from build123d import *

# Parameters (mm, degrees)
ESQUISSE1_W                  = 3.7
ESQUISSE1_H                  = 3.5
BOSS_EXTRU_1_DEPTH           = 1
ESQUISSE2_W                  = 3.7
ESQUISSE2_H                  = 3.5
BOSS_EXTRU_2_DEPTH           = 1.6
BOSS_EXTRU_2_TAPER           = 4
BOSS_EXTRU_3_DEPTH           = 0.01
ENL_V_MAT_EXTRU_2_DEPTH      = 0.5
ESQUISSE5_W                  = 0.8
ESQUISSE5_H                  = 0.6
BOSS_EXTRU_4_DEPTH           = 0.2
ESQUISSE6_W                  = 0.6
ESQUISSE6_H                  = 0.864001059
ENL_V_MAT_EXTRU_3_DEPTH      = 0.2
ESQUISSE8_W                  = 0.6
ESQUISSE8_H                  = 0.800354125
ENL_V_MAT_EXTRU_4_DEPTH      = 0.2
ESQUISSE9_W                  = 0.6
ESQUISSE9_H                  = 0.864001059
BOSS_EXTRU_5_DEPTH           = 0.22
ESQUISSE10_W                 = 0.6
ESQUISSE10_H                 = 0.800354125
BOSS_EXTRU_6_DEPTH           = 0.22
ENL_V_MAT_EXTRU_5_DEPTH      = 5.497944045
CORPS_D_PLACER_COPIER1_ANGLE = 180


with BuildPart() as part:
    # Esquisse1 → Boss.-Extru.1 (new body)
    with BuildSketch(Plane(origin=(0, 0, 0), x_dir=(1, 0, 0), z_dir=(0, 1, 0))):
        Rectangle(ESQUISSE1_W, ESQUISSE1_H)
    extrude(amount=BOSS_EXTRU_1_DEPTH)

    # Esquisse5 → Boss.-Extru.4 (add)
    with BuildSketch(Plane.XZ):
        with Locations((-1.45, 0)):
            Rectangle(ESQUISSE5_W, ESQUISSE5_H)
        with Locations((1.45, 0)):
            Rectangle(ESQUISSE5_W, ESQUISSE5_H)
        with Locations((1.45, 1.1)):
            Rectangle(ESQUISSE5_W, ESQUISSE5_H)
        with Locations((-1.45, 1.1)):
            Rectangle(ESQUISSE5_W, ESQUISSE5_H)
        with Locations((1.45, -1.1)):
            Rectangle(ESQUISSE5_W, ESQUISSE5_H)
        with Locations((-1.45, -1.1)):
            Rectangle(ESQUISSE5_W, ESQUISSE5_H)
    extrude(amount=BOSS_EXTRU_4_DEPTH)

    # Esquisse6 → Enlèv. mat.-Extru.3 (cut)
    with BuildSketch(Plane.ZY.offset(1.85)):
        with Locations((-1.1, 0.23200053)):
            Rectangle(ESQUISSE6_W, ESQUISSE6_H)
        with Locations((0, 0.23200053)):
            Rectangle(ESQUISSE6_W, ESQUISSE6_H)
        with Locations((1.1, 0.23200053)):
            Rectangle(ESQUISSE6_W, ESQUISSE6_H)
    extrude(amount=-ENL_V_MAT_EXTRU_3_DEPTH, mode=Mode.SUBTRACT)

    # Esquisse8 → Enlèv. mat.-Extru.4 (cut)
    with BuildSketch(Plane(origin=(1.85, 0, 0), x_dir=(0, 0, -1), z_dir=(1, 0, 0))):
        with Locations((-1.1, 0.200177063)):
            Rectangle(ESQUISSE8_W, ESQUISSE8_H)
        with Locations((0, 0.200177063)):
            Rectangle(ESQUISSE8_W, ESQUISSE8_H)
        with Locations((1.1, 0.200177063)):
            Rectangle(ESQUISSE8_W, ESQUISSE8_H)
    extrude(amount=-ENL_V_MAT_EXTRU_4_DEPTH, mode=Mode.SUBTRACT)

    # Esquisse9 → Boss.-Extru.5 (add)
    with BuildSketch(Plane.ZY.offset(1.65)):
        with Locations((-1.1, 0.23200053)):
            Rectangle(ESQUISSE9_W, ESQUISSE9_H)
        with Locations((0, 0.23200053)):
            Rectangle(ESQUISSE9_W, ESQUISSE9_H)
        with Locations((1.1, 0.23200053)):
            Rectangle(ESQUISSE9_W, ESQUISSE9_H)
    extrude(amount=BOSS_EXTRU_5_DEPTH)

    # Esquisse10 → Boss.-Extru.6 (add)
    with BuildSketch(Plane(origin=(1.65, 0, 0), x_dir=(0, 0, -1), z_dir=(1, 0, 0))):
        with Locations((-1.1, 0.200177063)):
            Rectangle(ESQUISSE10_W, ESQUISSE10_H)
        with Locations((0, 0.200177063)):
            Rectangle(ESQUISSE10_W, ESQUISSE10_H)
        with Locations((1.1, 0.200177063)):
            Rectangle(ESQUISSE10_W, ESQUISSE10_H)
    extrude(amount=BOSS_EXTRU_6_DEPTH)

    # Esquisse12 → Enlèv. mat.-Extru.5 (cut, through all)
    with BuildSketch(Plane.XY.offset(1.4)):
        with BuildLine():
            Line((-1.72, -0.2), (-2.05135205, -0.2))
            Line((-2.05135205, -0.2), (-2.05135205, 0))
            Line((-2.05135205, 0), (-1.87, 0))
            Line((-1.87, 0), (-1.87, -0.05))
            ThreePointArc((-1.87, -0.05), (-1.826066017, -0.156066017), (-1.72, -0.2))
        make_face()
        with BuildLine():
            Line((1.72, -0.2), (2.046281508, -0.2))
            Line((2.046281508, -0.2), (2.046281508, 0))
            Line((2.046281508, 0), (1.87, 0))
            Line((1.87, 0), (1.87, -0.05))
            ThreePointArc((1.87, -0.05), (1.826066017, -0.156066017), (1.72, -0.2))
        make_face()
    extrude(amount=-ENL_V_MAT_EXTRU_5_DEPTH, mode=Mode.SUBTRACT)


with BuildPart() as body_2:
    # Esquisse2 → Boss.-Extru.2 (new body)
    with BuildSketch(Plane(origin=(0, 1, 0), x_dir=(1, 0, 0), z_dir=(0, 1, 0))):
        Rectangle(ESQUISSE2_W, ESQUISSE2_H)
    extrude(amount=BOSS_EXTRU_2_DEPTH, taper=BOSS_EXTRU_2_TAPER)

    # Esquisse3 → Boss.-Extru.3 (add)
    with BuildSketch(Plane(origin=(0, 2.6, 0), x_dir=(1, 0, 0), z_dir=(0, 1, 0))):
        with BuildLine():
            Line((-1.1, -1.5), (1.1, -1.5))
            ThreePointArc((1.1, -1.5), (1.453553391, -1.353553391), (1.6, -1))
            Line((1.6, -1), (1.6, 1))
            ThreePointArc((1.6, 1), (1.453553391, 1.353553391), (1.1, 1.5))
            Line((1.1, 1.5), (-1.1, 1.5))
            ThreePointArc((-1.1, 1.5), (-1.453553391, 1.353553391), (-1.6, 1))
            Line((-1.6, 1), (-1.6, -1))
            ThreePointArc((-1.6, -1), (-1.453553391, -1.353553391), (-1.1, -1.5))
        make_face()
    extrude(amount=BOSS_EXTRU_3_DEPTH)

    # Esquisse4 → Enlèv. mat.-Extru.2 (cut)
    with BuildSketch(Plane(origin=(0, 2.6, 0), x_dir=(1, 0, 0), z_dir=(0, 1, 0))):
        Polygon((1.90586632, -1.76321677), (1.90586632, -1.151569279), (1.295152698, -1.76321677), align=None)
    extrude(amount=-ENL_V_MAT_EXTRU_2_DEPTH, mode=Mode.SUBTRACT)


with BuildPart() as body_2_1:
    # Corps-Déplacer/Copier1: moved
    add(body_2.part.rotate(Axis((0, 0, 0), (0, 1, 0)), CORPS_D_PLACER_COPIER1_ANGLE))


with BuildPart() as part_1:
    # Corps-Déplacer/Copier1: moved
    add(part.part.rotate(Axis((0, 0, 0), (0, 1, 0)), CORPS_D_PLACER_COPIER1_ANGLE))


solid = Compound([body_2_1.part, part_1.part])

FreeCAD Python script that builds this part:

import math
import FreeCAD as App
import Part
import Sketcher
Q = App.Units.Quantity


def add_polygon(sketch, points):
    """Adds a closed chain of lines whose ends are joined by coincident constraints."""
    first, n = sketch.GeometryCount, len(points)
    for a, b in zip(points, points[1:] + points[:1]):
        sketch.addGeometry(Part.LineSegment(App.Vector(*a, 0), App.Vector(*b, 0)), False)
    for i in range(n):
        sketch.addConstraint(Sketcher.Constraint("Coincident", first + i, 2, first + (i + 1) % n, 1))

doc = App.newDocument("Part")
body = doc.addObject("PartDesign::Body", "Body")

# Sketch on XZ plane
sketch1 = body.newObject("Sketcher::SketchObject", "Sketch")
sketch1.AttachmentSupport = (doc.getObject("XZ_Plane"), [""])
sketch1.MapMode = "FlatFace"
add_polygon(sketch1, [(-1.85, -1.75), (-1.85, 1.75), (1.85, 1.75), (1.85, -1.75)])  # lines 0-3
sketch1.addConstraint([
    Sketcher.Constraint("Vertical", 0),
    Sketcher.Constraint("Horizontal", 1),
    Sketcher.Constraint("Vertical", 2),
    Sketcher.Constraint("Horizontal", 3),
    Sketcher.Constraint("Symmetric", 0, 2, 2, 2, -1, 1),
    Sketcher.Constraint("DistanceX", 1, 1, 1, 2, Q("3.7 mm")),
    Sketcher.Constraint("DistanceY", 0, 1, 0, 2, Q("3.5 mm")),
])
pad1 = body.newObject("PartDesign::Pad", "Pad")
pad1.Profile = sketch1
pad1.Length = 1
pad1.Reversed = True

# Sketch on XZ plane
sketch2 = body.newObject("Sketcher::SketchObject", "Sketch001")
sketch2.AttachmentSupport = (doc.getObject("XZ_Plane"), [""])
sketch2.MapMode = "FlatFace"
add_polygon(sketch2, [(-1.85, 0.3), (-1.85, -0.3), (-1.05, -0.3), (-1.05, 0.3)])  # lines 0-3
add_polygon(sketch2, [(1.05, 0.3), (1.05, -0.3), (1.85, -0.3), (1.85, 0.3)])  # lines 4-7
add_polygon(sketch2, [(1.05, 1.4), (1.05, 0.8), (1.85, 0.8), (1.85, 1.4)])  # lines 8-11
add_polygon(sketch2, [(-1.85, 1.4), (-1.85, 0.8), (-1.05, 0.8), (-1.05, 1.4)])  # lines 12-15
add_polygon(sketch2, [(1.05, -0.8), (1.05, -1.4), (1.85, -1.4), (1.85, -0.8)])  # lines 16-19
add_polygon(sketch2, [(-1.85, -0.8), (-1.85, -1.4), (-1.05, -1.4), (-1.05, -0.8)])  # lines 20-23
sketch2.addConstraint([
    Sketcher.Constraint("Vertical", 0),
    Sketcher.Constraint("Horizontal", 1),
    Sketcher.Constraint("Vertical", 2),
    Sketcher.Constraint("Horizontal", 3),
    Sketcher.Constraint("Vertical", 4),
    Sketcher.Constraint("Horizontal", 5),
    Sketcher.Constraint("Vertical", 6),
    Sketcher.Constraint("Horizontal", 7),
    Sketcher.Constraint("Vertical", 8),
    Sketcher.Constraint("Horizontal", 9),
    Sketcher.Constraint("Vertical", 10),
    Sketcher.Constraint("Horizontal", 11),
    Sketcher.Constraint("Vertical", 12),
    Sketcher.Constraint("Horizontal", 13),
    Sketcher.Constraint("Vertical", 14),
    Sketcher.Constraint("Horizontal", 15),
    Sketcher.Constraint("Vertical", 16),
    Sketcher.Constraint("Horizontal", 17),
    Sketcher.Constraint("Vertical", 18),
    Sketcher.Constraint("Horizontal", 19),
    Sketcher.Constraint("Vertical", 20),
    Sketcher.Constraint("Horizontal", 21),
    Sketcher.Constraint("Vertical", 22),
    Sketcher.Constraint("Horizontal", 23),
    Sketcher.Constraint("Symmetric", 2, 2, 4, 2, -1, 1),
    Sketcher.Constraint("Symmetric", 0, 2, 6, 2, -1, 1),
    Sketcher.Constraint("Symmetric", 14, 2, 16, 2, -1, 1),
    Sketcher.Constraint("Symmetric", 12, 2, 18, 2, -1, 1),
    Sketcher.Constraint("Symmetric", 10, 2, 20, 2, -1, 1),
    Sketcher.Constraint("Symmetric", 8, 2, 22, 2, -1, 1),
    Sketcher.Constraint("Symmetric", 9, 2, 12, 2, -2),
    Sketcher.Constraint("Symmetric", 11, 2, 14, 2, -2),
    Sketcher.Constraint("Horizontal", 1, 2, 4, 2),
    Sketcher.Constraint("Vertical", 7, 2, 8, 2),
    Sketcher.Constraint("Vertical", 6, 2, 9, 2),
    Sketcher.Constraint("Equal", 6, 8),
    Sketcher.Constraint("DistanceX", 1, 1, 1, 2, Q("0.8 mm")),
    Sketcher.Constraint("DistanceY", 0, 2, 0, 1, Q("0.6 mm")),
    Sketcher.Constraint("DistanceY", -1, 1, 8, 2, Q("0.8 mm")),
    Sketcher.Constraint("DistanceX", 1, 2, 4, 2, Q("2.1 mm")),
])
pad2 = body.newObject("PartDesign::Pad", "Pad001")
pad2.Profile = sketch2
pad2.Length = 0.2

# Sketch on YZ plane
sketch3 = body.newObject("Sketcher::SketchObject", "Sketch002")
sketch3.AttachmentSupport = (doc.getObject("YZ_Plane"), [""])
sketch3.MapMode = "FlatFace"
sketch3.AttachmentOffset = App.Placement(App.Vector(0, 0, -1.85), App.Rotation())
add_polygon(sketch3, [(0.664001, -1.4), (-0.2, -1.4), (-0.2, -0.8), (0.664001, -0.8)])  # lines 0-3
add_polygon(sketch3, [(0.664001, -0.3), (-0.2, -0.3), (-0.2, 0.3), (0.664001, 0.3)])  # lines 4-7
add_polygon(sketch3, [(0.664001, 0.8), (-0.2, 0.8), (-0.2, 1.4), (0.664001, 1.4)])  # lines 8-11
sketch3.addConstraint([
    Sketcher.Constraint("Horizontal", 0),
    Sketcher.Constraint("Vertical", 1),
    Sketcher.Constraint("Horizontal", 2),
    Sketcher.Constraint("Vertical", 3),
    Sketcher.Constraint("Horizontal", 4),
    Sketcher.Constraint("Vertical", 5),
    Sketcher.Constraint("Horizontal", 6),
    Sketcher.Constraint("Vertical", 7),
    Sketcher.Constraint("Horizontal", 8),
    Sketcher.Constraint("Vertical", 9),
    Sketcher.Constraint("Horizontal", 10),
    Sketcher.Constraint("Vertical", 11),
    Sketcher.Constraint("Symmetric", 1, 2, 8, 2, -1),
    Sketcher.Constraint("Symmetric", 3, 2, 10, 2, -1),
    Sketcher.Constraint("Vertical", 1, 2, 4, 2),
    Sketcher.Constraint("Vertical", 3, 2, 6, 2),
    Sketcher.Constraint("Equal", 3, 5),
    Sketcher.Constraint("DistanceY", 1, 1, 1, 2, Q("0.6 mm")),
    Sketcher.Constraint("DistanceX", 0, 2, -1, 1, Q("0.2 mm")),
    Sketcher.Constraint("DistanceY", 0, 2, -1, 1, Q("1.4 mm")),
    Sketcher.Constraint("DistanceY", 4, 2, -1, 1, Q("0.3 mm")),
    Sketcher.Constraint("DistanceX", 0, 2, 0, 1, Q("0.864001 mm")),
])
pocket1 = body.newObject("PartDesign::Pocket", "Pocket")
pocket1.Profile = sketch3
pocket1.Length = 0.2
pocket1.Reversed = True

# Sketch on YZ plane
sketch4 = body.newObject("Sketcher::SketchObject", "Sketch003")
sketch4.AttachmentSupport = (doc.getObject("YZ_Plane"), [""])
sketch4.MapMode = "FlatFace"
sketch4.AttachmentOffset = App.Placement(App.Vector(0, 0, 1.85), App.Rotation())
add_polygon(sketch4, [(0.600354, 1.4), (-0.2, 1.4), (-0.2, 0.8), (0.600354, 0.8)])  # lines 0-3
add_polygon(sketch4, [(0.600354, 0.3), (-0.2, 0.3), (-0.2, -0.3), (0.600354, -0.3)])  # lines 4-7
add_polygon(sketch4, [(0.600354, -0.8), (-0.2, -0.8), (-0.2, -1.4), (0.600354, -1.4)])  # lines 8-11
sketch4.addConstraint([
    Sketcher.Constraint("Horizontal", 0),
    Sketcher.Constraint("Vertical", 1),
    Sketcher.Constraint("Horizontal", 2),
    Sketcher.Constraint("Vertical", 3),
    Sketcher.Constraint("Horizontal", 4),
    Sketcher.Constraint("Vertical", 5),
    Sketcher.Constraint("Horizontal", 6),
    Sketcher.Constraint("Vertical", 7),
    Sketcher.Constraint("Horizontal", 8),
    Sketcher.Constraint("Vertical", 9),
    Sketcher.Constraint("Horizontal", 10),
    Sketcher.Constraint("Vertical", 11),
    Sketcher.Constraint("Symmetric", 1, 2, 8, 2, -1),
    Sketcher.Constraint("Symmetric", 3, 2, 10, 2, -1),
    Sketcher.Constraint("Vertical", 1, 2, 4, 2),
    Sketcher.Constraint("Vertical", 3, 2, 6, 2),
    Sketcher.Constraint("Equal", 3, 5),
    Sketcher.Constraint("DistanceY", 1, 2, 1, 1, Q("0.6 mm")),
    Sketcher.Constraint("DistanceX", 0, 2, -1, 1, Q("0.2 mm")),
    Sketcher.Constraint("DistanceY", -1, 1, 0, 2, Q("1.4 mm")),
    Sketcher.Constraint("DistanceY", -1, 1, 4, 2, Q("0.3 mm")),
    Sketcher.Constraint("DistanceX", 0, 2, 0, 1, Q("0.800354 mm")),
])
pocket2 = body.newObject("PartDesign::Pocket", "Pocket001")
pocket2.Profile = sketch4
pocket2.Length = 0.2

# Sketch on YZ plane
sketch5 = body.newObject("Sketcher::SketchObject", "Sketch004")
sketch5.AttachmentSupport = (doc.getObject("YZ_Plane"), [""])
sketch5.MapMode = "FlatFace"
sketch5.AttachmentOffset = App.Placement(App.Vector(0, 0, -1.65), App.Rotation())
add_polygon(sketch5, [(0.664001, -1.4), (-0.2, -1.4), (-0.2, -0.8), (0.664001, -0.8)])  # lines 0-3
add_polygon(sketch5, [(0.664001, -0.3), (-0.2, -0.3), (-0.2, 0.3), (0.664001, 0.3)])  # lines 4-7
add_polygon(sketch5, [(0.664001, 0.8), (-0.2, 0.8), (-0.2, 1.4), (0.664001, 1.4)])  # lines 8-11
sketch5.addConstraint([
    Sketcher.Constraint("Horizontal", 0),
    Sketcher.Constraint("Vertical", 1),
    Sketcher.Constraint("Horizontal", 2),
    Sketcher.Constraint("Vertical", 3),
    Sketcher.Constraint("Horizontal", 4),
    Sketcher.Constraint("Vertical", 5),
    Sketcher.Constraint("Horizontal", 6),
    Sketcher.Constraint("Vertical", 7),
    Sketcher.Constraint("Horizontal", 8),
    Sketcher.Constraint("Vertical", 9),
    Sketcher.Constraint("Horizontal", 10),
    Sketcher.Constraint("Vertical", 11),
    Sketcher.Constraint("Symmetric", 1, 2, 8, 2, -1),
    Sketcher.Constraint("Symmetric", 3, 2, 10, 2, -1),
    Sketcher.Constraint("Vertical", 1, 2, 4, 2),
    Sketcher.Constraint("Vertical", 3, 2, 6, 2),
    Sketcher.Constraint("Equal", 3, 5),
    Sketcher.Constraint("DistanceY", 1, 1, 1, 2, Q("0.6 mm")),
    Sketcher.Constraint("DistanceX", 0, 2, -1, 1, Q("0.2 mm")),
    Sketcher.Constraint("DistanceY", 0, 2, -1, 1, Q("1.4 mm")),
    Sketcher.Constraint("DistanceY", 4, 2, -1, 1, Q("0.3 mm")),
    Sketcher.Constraint("DistanceX", 0, 2, 0, 1, Q("0.864001 mm")),
])
pad3 = body.newObject("PartDesign::Pad", "Pad002")
pad3.Profile = sketch5
pad3.Length = 0.22
pad3.Reversed = True

# Sketch on YZ plane
sketch6 = body.newObject("Sketcher::SketchObject", "Sketch005")
sketch6.AttachmentSupport = (doc.getObject("YZ_Plane"), [""])
sketch6.MapMode = "FlatFace"
sketch6.AttachmentOffset = App.Placement(App.Vector(0, 0, 1.65), App.Rotation())
add_polygon(sketch6, [(0.600354, 1.4), (-0.2, 1.4), (-0.2, 0.8), (0.600354, 0.8)])  # lines 0-3
add_polygon(sketch6, [(0.600354, 0.3), (-0.2, 0.3), (-0.2, -0.3), (0.600354, -0.3)])  # lines 4-7
add_polygon(sketch6, [(0.600354, -0.8), (-0.2, -0.8), (-0.2, -1.4), (0.600354, -1.4)])  # lines 8-11
sketch6.addConstraint([
    Sketcher.Constraint("Horizontal", 0),
    Sketcher.Constraint("Vertical", 1),
    Sketcher.Constraint("Horizontal", 2),
    Sketcher.Constraint("Vertical", 3),
    Sketcher.Constraint("Horizontal", 4),
    Sketcher.Constraint("Vertical", 5),
    Sketcher.Constraint("Horizontal", 6),
    Sketcher.Constraint("Vertical", 7),
    Sketcher.Constraint("Horizontal", 8),
    Sketcher.Constraint("Vertical", 9),
    Sketcher.Constraint("Horizontal", 10),
    Sketcher.Constraint("Vertical", 11),
    Sketcher.Constraint("Symmetric", 1, 2, 8, 2, -1),
    Sketcher.Constraint("Symmetric", 3, 2, 10, 2, -1),
    Sketcher.Constraint("Vertical", 1, 2, 4, 2),
    Sketcher.Constraint("Vertical", 3, 2, 6, 2),
    Sketcher.Constraint("Equal", 3, 5),
    Sketcher.Constraint("DistanceY", 1, 2, 1, 1, Q("0.6 mm")),
    Sketcher.Constraint("DistanceX", 0, 2, -1, 1, Q("0.2 mm")),
    Sketcher.Constraint("DistanceY", -1, 1, 0, 2, Q("1.4 mm")),
    Sketcher.Constraint("DistanceY", -1, 1, 4, 2, Q("0.3 mm")),
    Sketcher.Constraint("DistanceX", 0, 2, 0, 1, Q("0.800354 mm")),
])
pad4 = body.newObject("PartDesign::Pad", "Pad003")
pad4.Profile = sketch6
pad4.Length = 0.22

# Sketch on XY plane
sketch7 = body.newObject("Sketcher::SketchObject", "Sketch006")
sketch7.AttachmentSupport = (doc.getObject("XY_Plane"), [""])
sketch7.MapMode = "FlatFace"
sketch7.AttachmentOffset = App.Placement(App.Vector(0, 0, 1.4), App.Rotation())
sketch7.addGeometry([
    Part.LineSegment(App.Vector(-2.051352, -0.2, 0), App.Vector(-1.72, -0.2, 0)),  # 0
    Part.ArcOfCircle(Part.Circle(App.Vector(-1.72, -0.05, 0), App.Vector(0, 0, 1), 0.15), math.radians(-180), math.radians(-90)),  # 1
    Part.LineSegment(App.Vector(-1.87, -0.05, 0), App.Vector(-1.87, 0, 0)),  # 2
    Part.LineSegment(App.Vector(-1.87, 0, 0), App.Vector(-2.051352, 0, 0)),  # 3
    Part.LineSegment(App.Vector(-2.051352, 0, 0), App.Vector(-2.051352, -0.2, 0)),  # 4
    Part.LineSegment(App.Vector(1.72, -0.2, 0), App.Vector(2.046282, -0.2, 0)),  # 5
    Part.LineSegment(App.Vector(2.046282, -0.2, 0), App.Vector(2.046282, 0, 0)),  # 6
    Part.LineSegment(App.Vector(2.046282, 0, 0), App.Vector(1.87, 0, 0)),  # 7
    Part.LineSegment(App.Vector(1.87, 0, 0), App.Vector(1.87, -0.05, 0)),  # 8
    Part.ArcOfCircle(Part.Circle(App.Vector(1.72, -0.05, 0), App.Vector(0, 0, 1), 0.15), math.radians(-90), math.radians(0)),  # 9
], False)
sketch7.addConstraint([
    Sketcher.Constraint("Tangent", 0, 2, 1, 2),
    Sketcher.Constraint("Tangent", 1, 1, 2, 1),
    Sketcher.Constraint("Coincident", 2, 2, 3, 1),
    Sketcher.Constraint("Coincident", 3, 2, 4, 1),
    Sketcher.Constraint("Coincident", 4, 2, 0, 1),
    Sketcher.Constraint("Coincident", 5, 2, 6, 1),
    Sketcher.Constraint("Coincident", 6, 2, 7, 1),
    Sketcher.Constraint("Coincident", 7, 2, 8, 1),
    Sketcher.Constraint("Tangent", 8, 2, 9, 2),
    Sketcher.Constraint("Tangent", 9, 1, 5, 1),
    Sketcher.Constraint("Horizontal", 0),
    Sketcher.Constraint("Vertical", 2),
    Sketcher.Constraint("Horizontal", 3),
    Sketcher.Constraint("Vertical", 4),
    Sketcher.Constraint("Horizontal", 5),
    Sketcher.Constraint("Vertical", 6),
    Sketcher.Constraint("Horizontal", 7),
    Sketcher.Constraint("Vertical", 8),
    Sketcher.Constraint("Equal", 1, 9),
    Sketcher.Constraint("Symmetric", 2, 2, 7, 2, -1, 1),
    Sketcher.Constraint("PointOnObject", 2, 2, -1),
    Sketcher.Constraint("Horizontal", 1, 3, 9, 3),
    Sketcher.Constraint("Radius", 1, Q("0.15 mm")),
    Sketcher.Constraint("DistanceY", 4, 2, 4, 1, Q("0.2 mm")),
    Sketcher.Constraint("DistanceX", 1, 3, -1, 1, Q("1.72 mm")),
    Sketcher.Constraint("DistanceX", 5, 1, 5, 2, Q("0.326282 mm")),
    Sketcher.Constraint("DistanceX", 0, 1, 0, 2, Q("0.331352 mm")),
])
pocket3 = body.newObject("PartDesign::Pocket", "Pocket002")
pocket3.Profile = sketch7
pocket3.Type = "ThroughAll"
body2 = doc.addObject("PartDesign::Body", "Body001")

# Sketch on XZ plane
sketch8 = body2.newObject("Sketcher::SketchObject", "Sketch007")
sketch8.AttachmentSupport = (doc.getObject("XZ_Plane001"), [""])
sketch8.MapMode = "FlatFace"
sketch8.AttachmentOffset = App.Placement(App.Vector(0, 0, -1), App.Rotation())
add_polygon(sketch8, [(-1.85, -1.75), (-1.85, 1.75), (1.85, 1.75), (1.85, -1.75)])  # lines 0-3
sketch8.addConstraint([
    Sketcher.Constraint("Vertical", 0),
    Sketcher.Constraint("Horizontal", 1),
    Sketcher.Constraint("Vertical", 2),
    Sketcher.Constraint("Horizontal", 3),
    Sketcher.Constraint("Symmetric", 0, 2, 2, 2, -1, 1),
    Sketcher.Constraint("DistanceX", 1, 1, 1, 2, Q("3.7 mm")),
    Sketcher.Constraint("DistanceY", 0, 1, 0, 2, Q("3.5 mm")),
])
pad5 = body2.newObject("PartDesign::Pad", "Pad004")
pad5.Profile = sketch8
pad5.Length = 1.6
pad5.Reversed = True
pad5.TaperAngle = -4

# Sketch on XZ plane
sketch9 = body2.newObject("Sketcher::SketchObject", "Sketch008")
sketch9.AttachmentSupport = (doc.getObject("XZ_Plane001"), [""])
sketch9.MapMode = "FlatFace"
sketch9.AttachmentOffset = App.Placement(App.Vector(0, 0, -2.6), App.Rotation())
sketch9.addGeometry([
    Part.LineSegment(App.Vector(-1.1, 1.5, 0), App.Vector(1.1, 1.5, 0)),  # 0
    Part.ArcOfCircle(Part.Circle(App.Vector(1.1, 1, 0), App.Vector(0, 0, 1), 0.5), math.radians(0), math.radians(90)),  # 1
    Part.LineSegment(App.Vector(1.6, 1, 0), App.Vector(1.6, -1, 0)),  # 2
    Part.ArcOfCircle(Part.Circle(App.Vector(1.1, -1, 0), App.Vector(0, 0, 1), 0.5), math.radians(-90), math.radians(0)),  # 3
    Part.LineSegment(App.Vector(1.1, -1.5, 0), App.Vector(-1.1, -1.5, 0)),  # 4
    Part.ArcOfCircle(Part.Circle(App.Vector(-1.1, -1, 0), App.Vector(0, 0, 1), 0.5), math.radians(180), math.radians(270)),  # 5
    Part.LineSegment(App.Vector(-1.6, -1, 0), App.Vector(-1.6, 1, 0)),  # 6
    Part.ArcOfCircle(Part.Circle(App.Vector(-1.1, 1, 0), App.Vector(0, 0, 1), 0.5), math.radians(90), math.radians(180)),  # 7
], False)
sketch9.addConstraint([
    Sketcher.Constraint("Tangent", 0, 2, 1, 2),
    Sketcher.Constraint("Tangent", 1, 1, 2, 1),
    Sketcher.Constraint("Tangent", 2, 2, 3, 2),
    Sketcher.Constraint("Tangent", 3, 1, 4, 1),
    Sketcher.Constraint("Tangent", 4, 2, 5, 2),
    Sketcher.Constraint("Tangent", 5, 1, 6, 1),
    Sketcher.Constraint("Tangent", 6, 2, 7, 2),
    Sketcher.Constraint("Tangent", 7, 1, 0, 1),
    Sketcher.Constraint("Horizontal", 0),
    Sketcher.Constraint("Vertical", 2),
    Sketcher.Constraint("Horizontal", 4),
    Sketcher.Constraint("Vertical", 6),
    Sketcher.Constraint("Equal", 1, 3),
    Sketcher.Constraint("Equal", 3, 5),
    Sketcher.Constraint("Equal", 5, 7),
    Sketcher.Constraint("Symmetric", 1, 3, 5, 3, -1, 1),
    Sketcher.Constraint("Radius", 1, Q("0.5 mm")),
    Sketcher.Constraint("DistanceY", 2, 2, 2, 1, Q("2 mm")),
    Sketcher.Constraint("DistanceX", 0, 1, 0, 2, Q("2.2 mm")),
])
pad6 = body2.newObject("PartDesign::Pad", "Pad005")
pad6.Profile = sketch9
pad6.Length = 0.01
pad6.Reversed = True

# Sketch on XZ plane
sketch10 = body2.newObject("Sketcher::SketchObject", "Sketch009")
sketch10.AttachmentSupport = (doc.getObject("XZ_Plane001"), [""])
sketch10.MapMode = "FlatFace"
sketch10.AttachmentOffset = App.Placement(App.Vector(0, 0, -2.6), App.Rotation())
add_polygon(sketch10, [(1.905866, 1.763217), (1.905866, 1.151569), (1.295153, 1.763217)])  # lines 0-2
sketch10.addConstraint([
    Sketcher.Constraint("Vertical", 0),
    Sketcher.Constraint("Horizontal", 2),
    Sketcher.Constraint("Distance", 1, Q("0.86434 mm")),
    Sketcher.Constraint("DistanceX", 2, 1, 2, 2, Q("0.610714 mm")),
    Sketcher.Constraint("DistanceY", -1, 1, 0, 2, Q("1.151569 mm")),
    Sketcher.Constraint("DistanceX", -1, 1, 0, 2, Q("1.905866 mm")),
])
pocket4 = body2.newObject("PartDesign::Pocket", "Pocket003")
pocket4.Profile = sketch10
pocket4.Length = 0.5
pocket4.Reversed = True
body3 = doc.addObject("PartDesign::Body", "Body002")
doc.recompute()

body2.Placement = App.Placement(App.Vector(0, 0, 0), App.Rotation(App.Vector(0, 1, 0), 180))
boolean = body3.newObject("PartDesign::Boolean", "Boolean")
boolean.Type = "Fuse"
boolean.addObjects([body2])
body4 = doc.addObject("PartDesign::Body", "Body003")
doc.recompute()

body.Placement = App.Placement(App.Vector(0, 0, 0), App.Rotation(App.Vector(0, 1, 0), 180))
boolean2 = body4.newObject("PartDesign::Boolean", "Boolean001")
boolean2.Type = "Fuse"
boolean2.addObjects([body])

doc.recompute()
